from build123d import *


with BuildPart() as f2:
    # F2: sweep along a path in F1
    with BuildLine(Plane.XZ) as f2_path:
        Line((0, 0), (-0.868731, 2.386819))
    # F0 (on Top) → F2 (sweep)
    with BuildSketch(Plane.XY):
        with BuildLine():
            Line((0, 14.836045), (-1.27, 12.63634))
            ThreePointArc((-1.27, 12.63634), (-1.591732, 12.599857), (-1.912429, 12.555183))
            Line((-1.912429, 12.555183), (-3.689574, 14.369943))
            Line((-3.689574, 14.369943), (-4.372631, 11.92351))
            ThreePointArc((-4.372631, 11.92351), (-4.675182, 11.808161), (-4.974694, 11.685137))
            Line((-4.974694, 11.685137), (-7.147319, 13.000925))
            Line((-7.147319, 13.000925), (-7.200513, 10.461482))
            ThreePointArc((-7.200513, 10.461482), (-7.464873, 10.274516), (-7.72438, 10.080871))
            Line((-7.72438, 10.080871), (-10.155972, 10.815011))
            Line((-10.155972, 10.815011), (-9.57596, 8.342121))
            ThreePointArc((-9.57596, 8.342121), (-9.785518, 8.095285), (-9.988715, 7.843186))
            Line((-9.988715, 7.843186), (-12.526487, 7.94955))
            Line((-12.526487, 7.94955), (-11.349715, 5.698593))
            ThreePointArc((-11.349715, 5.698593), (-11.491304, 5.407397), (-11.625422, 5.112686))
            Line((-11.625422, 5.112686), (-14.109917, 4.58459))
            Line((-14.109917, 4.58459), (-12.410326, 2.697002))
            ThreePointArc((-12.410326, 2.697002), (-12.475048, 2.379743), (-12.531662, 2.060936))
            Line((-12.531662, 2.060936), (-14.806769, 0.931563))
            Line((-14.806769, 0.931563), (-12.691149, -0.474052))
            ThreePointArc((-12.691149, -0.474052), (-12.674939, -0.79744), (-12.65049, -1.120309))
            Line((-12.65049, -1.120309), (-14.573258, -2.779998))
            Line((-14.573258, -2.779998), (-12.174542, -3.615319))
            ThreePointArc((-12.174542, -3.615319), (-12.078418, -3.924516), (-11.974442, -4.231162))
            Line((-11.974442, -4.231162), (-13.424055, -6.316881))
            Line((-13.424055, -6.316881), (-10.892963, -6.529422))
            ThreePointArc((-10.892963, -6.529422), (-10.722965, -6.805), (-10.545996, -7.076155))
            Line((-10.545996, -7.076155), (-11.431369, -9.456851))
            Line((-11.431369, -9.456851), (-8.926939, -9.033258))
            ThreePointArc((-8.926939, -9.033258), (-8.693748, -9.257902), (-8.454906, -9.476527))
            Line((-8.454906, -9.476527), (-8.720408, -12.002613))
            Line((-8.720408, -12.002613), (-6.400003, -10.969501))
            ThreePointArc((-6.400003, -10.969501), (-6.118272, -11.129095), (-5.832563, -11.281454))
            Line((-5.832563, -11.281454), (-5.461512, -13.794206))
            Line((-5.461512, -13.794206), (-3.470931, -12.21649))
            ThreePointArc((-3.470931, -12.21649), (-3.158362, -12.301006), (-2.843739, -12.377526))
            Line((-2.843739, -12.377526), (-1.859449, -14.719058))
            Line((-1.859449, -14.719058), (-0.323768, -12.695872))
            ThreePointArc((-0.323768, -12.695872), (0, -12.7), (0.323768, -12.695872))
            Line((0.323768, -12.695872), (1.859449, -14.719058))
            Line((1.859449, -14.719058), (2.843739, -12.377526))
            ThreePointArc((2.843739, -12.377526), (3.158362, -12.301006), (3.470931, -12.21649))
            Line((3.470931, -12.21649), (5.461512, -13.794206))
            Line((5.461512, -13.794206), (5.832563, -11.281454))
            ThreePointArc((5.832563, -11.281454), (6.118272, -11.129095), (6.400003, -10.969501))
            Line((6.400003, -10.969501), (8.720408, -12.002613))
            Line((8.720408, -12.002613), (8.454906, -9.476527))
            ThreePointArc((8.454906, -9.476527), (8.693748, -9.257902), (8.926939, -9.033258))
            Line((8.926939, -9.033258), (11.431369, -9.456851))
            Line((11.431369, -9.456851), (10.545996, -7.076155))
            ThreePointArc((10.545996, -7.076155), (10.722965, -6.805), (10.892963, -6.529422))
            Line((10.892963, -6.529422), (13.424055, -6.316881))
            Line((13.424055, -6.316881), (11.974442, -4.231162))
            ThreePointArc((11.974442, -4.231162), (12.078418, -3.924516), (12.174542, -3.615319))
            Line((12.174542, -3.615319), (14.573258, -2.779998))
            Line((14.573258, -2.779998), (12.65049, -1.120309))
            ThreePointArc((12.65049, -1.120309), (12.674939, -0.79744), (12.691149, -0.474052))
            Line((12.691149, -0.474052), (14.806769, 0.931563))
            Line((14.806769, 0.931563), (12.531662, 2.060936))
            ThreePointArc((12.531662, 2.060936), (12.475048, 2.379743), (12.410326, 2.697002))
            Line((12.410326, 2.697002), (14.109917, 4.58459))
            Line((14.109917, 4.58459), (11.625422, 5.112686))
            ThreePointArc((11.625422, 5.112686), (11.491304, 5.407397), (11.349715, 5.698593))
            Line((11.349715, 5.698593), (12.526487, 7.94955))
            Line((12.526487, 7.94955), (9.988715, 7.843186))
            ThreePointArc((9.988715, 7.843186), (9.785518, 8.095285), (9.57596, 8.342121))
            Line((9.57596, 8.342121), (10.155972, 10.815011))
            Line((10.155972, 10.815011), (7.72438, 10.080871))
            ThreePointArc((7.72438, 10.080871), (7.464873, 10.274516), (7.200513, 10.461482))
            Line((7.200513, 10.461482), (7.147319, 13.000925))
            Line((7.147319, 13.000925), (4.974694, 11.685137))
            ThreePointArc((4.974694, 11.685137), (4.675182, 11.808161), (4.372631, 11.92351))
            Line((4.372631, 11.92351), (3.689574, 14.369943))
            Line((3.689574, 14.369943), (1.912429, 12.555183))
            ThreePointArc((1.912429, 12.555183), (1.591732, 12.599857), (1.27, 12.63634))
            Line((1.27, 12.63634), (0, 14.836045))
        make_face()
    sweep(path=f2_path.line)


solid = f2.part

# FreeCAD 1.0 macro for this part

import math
import FreeCAD as App
import Part
import Sketcher
from FreeCAD import Vector
Q = App.Units.Quantity

doc = App.newDocument("Part")
body = doc.addObject("PartDesign::Body", "Body")

# Sketch on XY plane
sketch1 = body.newObject("Sketcher::SketchObject", "Sketch")
sketch1.AttachmentSupport = (doc.getObject("XY_Plane"), [""])
sketch1.MapMode = "FlatFace"
sketch1.addGeometry(Part.LineSegment(Vector(0, 14.836045, 0), Vector(-1.27, 12.63634, 0)), False)
sketch1.addGeometry(Part.ArcOfCircle(Part.Circle(Vector(-0.000171, 0.001255, 0), Vector(0, 0, 1), 12.698733), math.radians(95.738968), math.radians(98.660916)), False)
sketch1.addGeometry(Part.LineSegment(Vector(-1.912429, 12.555183, 0), Vector(-3.689574, 14.369943, 0)), False)
sketch1.addGeometry(Part.LineSegment(Vector(-3.689574, 14.369943, 0), Vector(-4.372631, 11.92351, 0)), False)
sketch1.addGeometry(Part.ArcOfCircle(Part.Circle(Vector(0.000298, -0.000782, 0), Vector(0, 0, 1), 12.700836), math.radians(110.139218), math.radians(113.060682)), False)
sketch1.addGeometry(Part.LineSegment(Vector(-4.974694, 11.685137, 0), Vector(-7.147319, 13.000925, 0)), False)
sketch1.addGeometry(Part.LineSegment(Vector(-7.147319, 13.000925, 0), Vector(-7.200513, 10.461482, 0)), False)
sketch1.addGeometry(Part.ArcOfCircle(Part.Circle(Vector(-0.000588, 0.000791, 0), Vector(0, 0, 1), 12.699014), math.radians(124.539012), math.radians(127.460895)), False)
sketch1.addGeometry(Part.LineSegment(Vector(-7.72438, 10.080871, 0), Vector(-10.155972, 10.815011, 0)), False)
sketch1.addGeometry(Part.LineSegment(Vector(-10.155972, 10.815011, 0), Vector(-9.57596, 8.342121, 0)), False)
sketch1.addGeometry(Part.ArcOfCircle(Part.Circle(Vector(-0.000786, 0.000649, 0), Vector(0, 0, 1), 12.69898), math.radians(138.939047), math.radians(141.860943)), False)
sketch1.addGeometry(Part.LineSegment(Vector(-9.988715, 7.843186, 0), Vector(-12.526487, 7.94955, 0)), False)
sketch1.addGeometry(Part.LineSegment(Vector(-12.526487, 7.94955, 0), Vector(-11.349715, 5.698593, 0)), False)
sketch1.addGeometry(Part.ArcOfCircle(Part.Circle(Vector(-0.00177, 0.000831, 0), Vector(0, 0, 1), 12.698044), math.radians(153.338939), math.radians(156.261046)), False)
sketch1.addGeometry(Part.LineSegment(Vector(-11.625422, 5.112686, 0), Vector(-14.109917, 4.58459, 0)), False)
sketch1.addGeometry(Part.LineSegment(Vector(-14.109917, 4.58459, 0), Vector(-12.410326, 2.697002, 0)), False)
sketch1.addGeometry(Part.ArcOfCircle(Part.Circle(Vector(0.001321, -0.000251, 0), Vector(0, 0, 1), 12.701344), math.radians(167.739332), math.radians(170.660682)), False)
sketch1.addGeometry(Part.LineSegment(Vector(-12.531662, 2.060936, 0), Vector(-14.806769, 0.931563, 0)), False)
sketch1.addGeometry(Part.LineSegment(Vector(-14.806769, 0.931563, 0), Vector(-12.691149, -0.474052, 0)), False)
sketch1.addGeometry(Part.ArcOfCircle(Part.Circle(Vector(-0.000041, -0.000004, 0), Vector(0, 0, 1), 12.699958), math.radians(-177.860837), math.radians(-174.939171)), False)
sketch1.addGeometry(Part.LineSegment(Vector(-12.65049, -1.120309, 0), Vector(-14.573258, -2.779998, 0)), False)
sketch1.addGeometry(Part.LineSegment(Vector(-14.573258, -2.779998, 0), Vector(-12.174542, -3.615319, 0)), False)
sketch1.addGeometry(Part.ArcOfCircle(Part.Circle(Vector(-0.00098, -0.000309, 0), Vector(0, 0, 1), 12.698972), math.radians(-163.460908), math.radians(-160.539011)), False)
sketch1.addGeometry(Part.LineSegment(Vector(-11.974442, -4.231162, 0), Vector(-13.424055, -6.316881, 0)), False)
sketch1.addGeometry(Part.LineSegment(Vector(-13.424055, -6.316881, 0), Vector(-10.892963, -6.529422, 0)), False)
sketch1.addGeometry(Part.ArcOfCircle(Part.Circle(Vector(-0.000559, -0.000361, 0), Vector(0, 0, 1), 12.699334), math.radians(-149.060931), math.radians(-146.139116)), False)
sketch1.addGeometry(Part.LineSegment(Vector(-10.545996, -7.076155, 0), Vector(-11.431369, -9.456851, 0)), False)
sketch1.addGeometry(Part.LineSegment(Vector(-11.431369, -9.456851, 0), Vector(-8.926939, -9.033258, 0)), False)
sketch1.addGeometry(Part.ArcOfCircle(Part.Circle(Vector(-0.000741, -0.0008, 0), Vector(0, 0, 1), 12.69891), math.radians(-134.660988), math.radians(-131.739077)), False)
sketch1.addGeometry(Part.LineSegment(Vector(-8.454906, -9.476527, 0), Vector(-8.720408, -12.002613, 0)), False)
sketch1.addGeometry(Part.LineSegment(Vector(-8.720408, -12.002613, 0), Vector(-6.400003, -10.969501, 0)), False)
sketch1.addGeometry(Part.ArcOfCircle(Part.Circle(Vector(-0.000857, -0.001566, 0), Vector(0, 0, 1), 12.698215), math.radians(-120.261053), math.radians(-117.338981)), False)
sketch1.addGeometry(Part.LineSegment(Vector(-5.832563, -11.281454, 0), Vector(-5.461512, -13.794206, 0)), False)
sketch1.addGeometry(Part.LineSegment(Vector(-5.461512, -13.794206, 0), Vector(-3.470931, -12.21649, 0)), False)
sketch1.addGeometry(Part.ArcOfCircle(Part.Circle(Vector(-0.000096, -0.000411, 0), Vector(0, 0, 1), 12.699578), math.radians(-105.860918), math.radians(-102.939161)), False)
sketch1.addGeometry(Part.LineSegment(Vector(-2.843739, -12.377526, 0), Vector(-1.859449, -14.719058, 0)), False)
sketch1.addGeometry(Part.LineSegment(Vector(-1.859449, -14.719058, 0), Vector(-0.323768, -12.695872, 0)), False)
sketch1.addGeometry(Part.ArcOfCircle(Part.Circle(Vector(0, -0.001023, 0), Vector(0, 0, 1), 12.698977), math.radians(-91.460948), math.radians(-88.539052)), False)
sketch1.addGeometry(Part.LineSegment(Vector(0.323768, -12.695872, 0), Vector(1.859449, -14.719058, 0)), False)
sketch1.addGeometry(Part.LineSegment(Vector(1.859449, -14.719058, 0), Vector(2.843739, -12.377526, 0)), False)
sketch1.addGeometry(Part.ArcOfCircle(Part.Circle(Vector(0.000096, -0.000411, 0), Vector(0, 0, 1), 12.699578), math.radians(-77.060839), math.radians(-74.139082)), False)
sketch1.addGeometry(Part.LineSegment(Vector(3.470931, -12.21649, 0), Vector(5.461512, -13.794206, 0)), False)
sketch1.addGeometry(Part.LineSegment(Vector(5.461512, -13.794206, 0), Vector(5.832563, -11.281454, 0)), False)
sketch1.addGeometry(Part.ArcOfCircle(Part.Circle(Vector(0.000857, -0.001566, 0), Vector(0, 0, 1), 12.698215), math.radians(-62.661019), math.radians(-59.738947)), False)
sketch1.addGeometry(Part.LineSegment(Vector(6.400003, -10.969501, 0), Vector(8.720408, -12.002613, 0)), False)
sketch1.addGeometry(Part.LineSegment(Vector(8.720408, -12.002613, 0), Vector(8.454906, -9.476527, 0)), False)
sketch1.addGeometry(Part.ArcOfCircle(Part.Circle(Vector(0.000741, -0.0008, 0), Vector(0, 0, 1), 12.69891), math.radians(-48.260923), math.radians(-45.339012)), False)
sketch1.addGeometry(Part.LineSegment(Vector(8.926939, -9.033258, 0), Vector(11.431369, -9.456851, 0)), False)
sketch1.addGeometry(Part.LineSegment(Vector(11.431369, -9.456851, 0), Vector(10.545996, -7.076155, 0)), False)
sketch1.addGeometry(Part.ArcOfCircle(Part.Circle(Vector(0.000559, -0.000361, 0), Vector(0, 0, 1), 12.699334), math.radians(-33.860884), math.radians(-30.939069)), False)
sketch1.addGeometry(Part.LineSegment(Vector(10.892963, -6.529422, 0), Vector(13.424055, -6.316881, 0)), False)
sketch1.addGeometry(Part.LineSegment(Vector(13.424055, -6.316881, 0), Vector(11.974442, -4.231162, 0)), False)
sketch1.addGeometry(Part.ArcOfCircle(Part.Circle(Vector(0.00098, -0.000309, 0), Vector(0, 0, 1), 12.698972), math.radians(-19.460989), math.radians(-16.539092)), False)
sketch1.addGeometry(Part.LineSegment(Vector(12.174542, -3.615319, 0), Vector(14.573258, -2.779998, 0)), False)
sketch1.addGeometry(Part.LineSegment(Vector(14.573258, -2.779998, 0), Vector(12.65049, -1.120309, 0)), False)
sketch1.addGeometry(Part.ArcOfCircle(Part.Circle(Vector(0.000041, -0.000004, 0), Vector(0, 0, 1), 12.699958), math.radians(-5.060829), math.radians(-2.139163)), False)
sketch1.addGeometry(Part.LineSegment(Vector(12.691149, -0.474052, 0), Vector(14.806769, 0.931563, 0)), False)
sketch1.addGeometry(Part.LineSegment(Vector(14.806769, 0.931563, 0), Vector(12.531662, 2.060936, 0)), False)
sketch1.addGeometry(Part.ArcOfCircle(Part.Circle(Vector(-0.001321, -0.000251, 0), Vector(0, 0, 1), 12.701344), math.radians(9.339318), math.radians(12.260668)), False)
sketch1.addGeometry(Part.LineSegment(Vector(12.410326, 2.697002, 0), Vector(14.109917, 4.58459, 0)), False)
sketch1.addGeometry(Part.LineSegment(Vector(14.109917, 4.58459, 0), Vector(11.625422, 5.112686, 0)), False)
sketch1.addGeometry(Part.ArcOfCircle(Part.Circle(Vector(0.00177, 0.000831, 0), Vector(0, 0, 1), 12.698044), math.radians(23.738954), math.radians(26.661061)), False)
sketch1.addGeometry(Part.LineSegment(Vector(11.349715, 5.698593, 0), Vector(12.526487, 7.94955, 0)), False)
sketch1.addGeometry(Part.LineSegment(Vector(12.526487, 7.94955, 0), Vector(9.988715, 7.843186, 0)), False)
sketch1.addGeometry(Part.ArcOfCircle(Part.Circle(Vector(0.000786, 0.000649, 0), Vector(0, 0, 1), 12.69898), math.radians(38.139057), math.radians(41.060953)), False)
sketch1.addGeometry(Part.LineSegment(Vector(9.57596, 8.342121, 0), Vector(10.155972, 10.815011, 0)), False)
sketch1.addGeometry(Part.LineSegment(Vector(10.155972, 10.815011, 0), Vector(7.72438, 10.080871, 0)), False)
sketch1.addGeometry(Part.ArcOfCircle(Part.Circle(Vector(0.000588, 0.000791, 0), Vector(0, 0, 1), 12.699014), math.radians(52.539105), math.radians(55.460988)), False)
sketch1.addGeometry(Part.LineSegment(Vector(7.200513, 10.461482, 0), Vector(7.147319, 13.000925, 0)), False)
sketch1.addGeometry(Part.LineSegment(Vector(7.147319, 13.000925, 0), Vector(4.974694, 11.685137, 0)), False)
sketch1.addGeometry(Part.ArcOfCircle(Part.Circle(Vector(-0.000298, -0.000782, 0), Vector(0, 0, 1), 12.700836), math.radians(66.939318), math.radians(69.860782)), False)
sketch1.addGeometry(Part.LineSegment(Vector(4.372631, 11.92351, 0), Vector(3.689574, 14.369943, 0)), False)
sketch1.addGeometry(Part.LineSegment(Vector(3.689574, 14.369943, 0), Vector(1.912429, 12.555183, 0)), False)
sketch1.addGeometry(Part.ArcOfCircle(Part.Circle(Vector(0.000171, 0.001255, 0), Vector(0, 0, 1), 12.698733), math.radians(81.339084), math.radians(84.261032)), False)
sketch1.addGeometry(Part.LineSegment(Vector(1.27, 12.63634, 0), Vector(0, 14.836045, 0)), False)
sketch1.addConstraint(Sketcher.Constraint("Coincident", 0, 2, 1, 1))
sketch1.addConstraint(Sketcher.Constraint("Coincident", 1, 2, 2, 1))
sketch1.addConstraint(Sketcher.Constraint("Coincident", 2, 2, 3, 1))
sketch1.addConstraint(Sketcher.Constraint("Coincident", 3, 2, 4, 1))
sketch1.addConstraint(Sketcher.Constraint("Coincident", 4, 2, 5, 1))
sketch1.addConstraint(Sketcher.Constraint("Coincident", 5, 2, 6, 1))
sketch1.addConstraint(Sketcher.Constraint("Coincident", 6, 2, 7, 1))
sketch1.addConstraint(Sketcher.Constraint("Coincident", 7, 2, 8, 1))
sketch1.addConstraint(Sketcher.Constraint("Coincident", 8, 2, 9, 1))
sketch1.addConstraint(Sketcher.Constraint("Coincident", 9, 2, 10, 1))
sketch1.addConstraint(Sketcher.Constraint("Coincident", 10, 2, 11, 1))
sketch1.addConstraint(Sketcher.Constraint("Coincident", 11, 2, 12, 1))
sketch1.addConstraint(Sketcher.Constraint("Coincident", 12, 2, 13, 1))
sketch1.addConstraint(Sketcher.Constraint("Coincident", 13, 2, 14, 1))
sketch1.addConstraint(Sketcher.Constraint("Coincident", 14, 2, 15, 1))
sketch1.addConstraint(Sketcher.Constraint("Coincident", 15, 2, 16, 1))
sketch1.addConstraint(Sketcher.Constraint("Coincident", 16, 2, 17, 1))
sketch1.addConstraint(Sketcher.Constraint("Coincident", 17, 2, 18, 1))
sketch1.addConstraint(Sketcher.Constraint("Coincident", 18, 2, 19, 1))
sketch1.addConstraint(Sketcher.Constraint("Coincident", 19, 2, 20, 1))
sketch1.addConstraint(Sketcher.Constraint("Coincident", 20, 2, 21, 1))
sketch1.addConstraint(Sketcher.Constraint("Coincident", 21, 2, 22, 1))
sketch1.addConstraint(Sketcher.Constraint("Coincident", 22, 2, 23, 1))
sketch1.addConstraint(Sketcher.Constraint("Coincident", 23, 2, 24, 1))
sketch1.addConstraint(Sketcher.Constraint("Coincident", 24, 2, 25, 1))
sketch1.addConstraint(Sketcher.Constraint("Coincident", 25, 2, 26, 1))
sketch1.addConstraint(Sketcher.Constraint("Coincident", 26, 2, 27, 1))
sketch1.addConstraint(Sketcher.Constraint("Coincident", 27, 2, 28, 1))
sketch1.addConstraint(Sketcher.Constraint("Coincident", 28, 2, 29, 1))
sketch1.addConstraint(Sketcher.Constraint("Coincident", 29, 2, 30, 1))
sketch1.addConstraint(Sketcher.Constraint("Coincident", 30, 2, 31, 1))
sketch1.addConstraint(Sketcher.Constraint("Coincident", 31, 2, 32, 1))
sketch1.addConstraint(Sketcher.Constraint("Coincident", 32, 2, 33, 1))
sketch1.addConstraint(Sketcher.Constraint("Coincident", 33, 2, 34, 1))
sketch1.addConstraint(Sketcher.Constraint("Coincident", 34, 2, 35, 1))
sketch1.addConstraint(Sketcher.Constraint("Coincident", 35, 2, 36, 1))
sketch1.addConstraint(Sketcher.Constraint("Coincident", 36, 2, 37, 1))
sketch1.addConstraint(Sketcher.Constraint("Coincident", 37, 2, 38, 1))
sketch1.addConstraint(Sketcher.Constraint("Coincident", 38, 2, 39, 1))
sketch1.addConstraint(Sketcher.Constraint("Coincident", 39, 2, 40, 1))
sketch1.addConstraint(Sketcher.Constraint("Coincident", 40, 2, 41, 1))
sketch1.addConstraint(Sketcher.Constraint("Coincident", 41, 2, 42, 1))
sketch1.addConstraint(Sketcher.Constraint("Coincident", 42, 2, 43, 1))
sketch1.addConstraint(Sketcher.Constraint("Coincident", 43, 2, 44, 1))
sketch1.addConstraint(Sketcher.Constraint("Coincident", 44, 2, 45, 1))
sketch1.addConstraint(Sketcher.Constraint("Coincident", 45, 2, 46, 1))
sketch1.addConstraint(Sketcher.Constraint("Coincident", 46, 2, 47, 1))
sketch1.addConstraint(Sketcher.Constraint("Coincident", 47, 2, 48, 1))
sketch1.addConstraint(Sketcher.Constraint("Coincident", 48, 2, 49, 1))
sketch1.addConstraint(Sketcher.Constraint("Coincident", 49, 2, 50, 1))
sketch1.addConstraint(Sketcher.Constraint("Coincident", 50, 2, 51, 1))
sketch1.addConstraint(Sketcher.Constraint("Coincident", 51, 2, 52, 1))
sketch1.addConstraint(Sketcher.Constraint("Coincident", 52, 2, 53, 1))
sketch1.addConstraint(Sketcher.Constraint("Coincident", 53, 2, 54, 1))
sketch1.addConstraint(Sketcher.Constraint("Coincident", 54, 2, 55, 1))
sketch1.addConstraint(Sketcher.Constraint("Coincident", 55, 2, 56, 1))
sketch1.addConstraint(Sketcher.Constraint("Coincident", 56, 2, 57, 1))
sketch1.addConstraint(Sketcher.Constraint("Coincident", 57, 2, 58, 1))
sketch1.addConstraint(Sketcher.Constraint("Coincident", 58, 2, 59, 1))
sketch1.addConstraint(Sketcher.Constraint("Coincident", 59, 2, 60, 1))
sketch1.addConstraint(Sketcher.Constraint("Coincident", 60, 2, 61, 1))
sketch1.addConstraint(Sketcher.Constraint("Coincident", 61, 2, 62, 1))
sketch1.addConstraint(Sketcher.Constraint("Coincident", 62, 2, 63, 1))
sketch1.addConstraint(Sketcher.Constraint("Coincident", 63, 2, 64, 1))
sketch1.addConstraint(Sketcher.Constraint("Coincident", 64, 2, 65, 1))
sketch1.addConstraint(Sketcher.Constraint("Coincident", 65, 2, 66, 1))
sketch1.addConstraint(Sketcher.Constraint("Coincident", 66, 2, 67, 1))
sketch1.addConstraint(Sketcher.Constraint("Coincident", 67, 2, 68, 1))
sketch1.addConstraint(Sketcher.Constraint("Coincident", 68, 2, 69, 1))
sketch1.addConstraint(Sketcher.Constraint("Coincident", 69, 2, 70, 1))
sketch1.addConstraint(Sketcher.Constraint("Coincident", 70, 2, 71, 1))
sketch1.addConstraint(Sketcher.Constraint("Coincident", 71, 2, 72, 1))
sketch1.addConstraint(Sketcher.Constraint("Coincident", 72, 2, 73, 1))
sketch1.addConstraint(Sketcher.Constraint("Coincident", 73, 2, 74, 1))
sketch1.addConstraint(Sketcher.Constraint("Coincident", 74, 2, 0, 1))
sketch1.addConstraint(Sketcher.Constraint("PointOnObject", 37, 3, -2))
sketch1.addConstraint(Sketcher.Constraint("PointOnObject", 74, 2, -2))
sketch1.addConstraint(Sketcher.Constraint("Distance", 0, Q("0.1 in")))
sketch1.addConstraint(Sketcher.Constraint("Distance", 2, Q("0.1 in")))
sketch1.addConstraint(Sketcher.Constraint("Distance", 3, Q("0.1 in")))
sketch1.addConstraint(Sketcher.Constraint("Distance", 5, Q("0.1 in")))
sketch1.addConstraint(Sketcher.Constraint("Distance", 6, Q("0.1 in")))
sketch1.addConstraint(Sketcher.Constraint("Distance", 8, Q("0.1 in")))
sketch1.addConstraint(Sketcher.Constraint("Distance", 9, Q("0.1 in")))
sketch1.addConstraint(Sketcher.Constraint("Distance", 11, Q("0.1 in")))
sketch1.addConstraint(Sketcher.Constraint("Distance", 12, Q("0.1 in")))
sketch1.addConstraint(Sketcher.Constraint("Distance", 14, Q("0.1 in")))
sketch1.addConstraint(Sketcher.Constraint("Distance", 15, Q("0.1 in")))
sketch1.addConstraint(Sketcher.Constraint("Distance", 17, Q("0.1 in")))
sketch1.addConstraint(Sketcher.Constraint("Distance", 18, Q("0.1 in")))
sketch1.addConstraint(Sketcher.Constraint("Distance", 20, Q("0.1 in")))
sketch1.addConstraint(Sketcher.Constraint("Distance", 21, Q("0.1 in")))
sketch1.addConstraint(Sketcher.Constraint("Distance", 23, Q("0.1 in")))
sketch1.addConstraint(Sketcher.Constraint("Distance", 24, Q("0.1 in")))
sketch1.addConstraint(Sketcher.Constraint("Distance", 26, Q("0.1 in")))
sketch1.addConstraint(Sketcher.Constraint("Distance", 27, Q("0.1 in")))
sketch1.addConstraint(Sketcher.Constraint("Distance", 29, Q("0.1 in")))
sketch1.addConstraint(Sketcher.Constraint("Distance", 30, Q("0.1 in")))
sketch1.addConstraint(Sketcher.Constraint("Distance", 32, Q("0.1 in")))
sketch1.addConstraint(Sketcher.Constraint("Distance", 33, Q("0.1 in")))
sketch1.addConstraint(Sketcher.Constraint("Distance", 35, Q("0.1 in")))
sketch1.addConstraint(Sketcher.Constraint("Distance", 36, Q("0.1 in")))
sketch1.addConstraint(Sketcher.Constraint("Distance", 38, Q("0.1 in")))
sketch1.addConstraint(Sketcher.Constraint("Distance", 39, Q("0.1 in")))
sketch1.addConstraint(Sketcher.Constraint("Distance", 41, Q("0.1 in")))
sketch1.addConstraint(Sketcher.Constraint("Distance", 42, Q("0.1 in")))
sketch1.addConstraint(Sketcher.Constraint("Distance", 44, Q("0.1 in")))
sketch1.addConstraint(Sketcher.Constraint("Distance", 45, Q("0.1 in")))
sketch1.addConstraint(Sketcher.Constraint("Distance", 47, Q("0.1 in")))
sketch1.addConstraint(Sketcher.Constraint("Distance", 48, Q("0.1 in")))
sketch1.addConstraint(Sketcher.Constraint("Distance", 50, Q("0.1 in")))
sketch1.addConstraint(Sketcher.Constraint("Distance", 51, Q("0.1 in")))
sketch1.addConstraint(Sketcher.Constraint("Distance", 53, Q("0.1 in")))
sketch1.addConstraint(Sketcher.Constraint("Distance", 54, Q("0.1 in")))
sketch1.addConstraint(Sketcher.Constraint("Distance", 56, Q("0.1 in")))
sketch1.addConstraint(Sketcher.Constraint("Distance", 57, Q("0.1 in")))
sketch1.addConstraint(Sketcher.Constraint("Distance", 59, Q("0.1 in")))
sketch1.addConstraint(Sketcher.Constraint("Distance", 60, Q("0.1 in")))
sketch1.addConstraint(Sketcher.Constraint("Distance", 62, Q("0.1 in")))
sketch1.addConstraint(Sketcher.Constraint("Distance", 63, Q("0.1 in")))
sketch1.addConstraint(Sketcher.Constraint("Distance", 65, Q("0.1 in")))
sketch1.addConstraint(Sketcher.Constraint("Distance", 66, Q("0.1 in")))
sketch1.addConstraint(Sketcher.Constraint("Distance", 68, Q("0.1 in")))
sketch1.addConstraint(Sketcher.Constraint("Distance", 69, Q("0.1 in")))
sketch1.addConstraint(Sketcher.Constraint("Distance", 71, Q("0.1 in")))
sketch1.addConstraint(Sketcher.Constraint("Distance", 72, Q("0.1 in")))
sketch1.addConstraint(Sketcher.Constraint("Distance", 74, Q("0.1 in")))
sketch1.addConstraint(Sketcher.Constraint("DistanceX", 0, 2, -1, 1, Q("0.05 in")))
sketch1.addConstraint(Sketcher.Constraint("DistanceX", -1, 1, 73, 2, Q("0.05 in")))
sketch1.addConstraint(Sketcher.Constraint("Radius", 10, Q("12.69898 mm")))
sketch1.addConstraint(Sketcher.Constraint("Radius", 19, Q("12.699958 mm")))
sketch1.addConstraint(Sketcher.Constraint("Radius", 28, Q("12.69891 mm")))
sketch1.addConstraint(Sketcher.Constraint("Radius", 34, Q("12.699578 mm")))
sketch1.addConstraint(Sketcher.Constraint("Radius", 40, Q("12.699578 mm")))
sketch1.addConstraint(Sketcher.Constraint("Radius", 46, Q("12.69891 mm")))
sketch1.addConstraint(Sketcher.Constraint("Radius", 55, Q("12.699958 mm")))
sketch1.addConstraint(Sketcher.Constraint("Radius", 64, Q("12.69898 mm")))
sketch1.addConstraint(Sketcher.Constraint("Radius", 1, Q("12.698733 mm")))
sketch1.addConstraint(Sketcher.Constraint("Radius", 4, Q("12.700836 mm")))
sketch1.addConstraint(Sketcher.Constraint("Radius", 7, Q("12.699014 mm")))
sketch1.addConstraint(Sketcher.Constraint("Radius", 13, Q("12.698044 mm")))
sketch1.addConstraint(Sketcher.Constraint("Radius", 16, Q("12.701344 mm")))
sketch1.addConstraint(Sketcher.Constraint("Radius", 22, Q("12.698972 mm")))
sketch1.addConstraint(Sketcher.Constraint("Radius", 25, Q("12.699334 mm")))
sketch1.addConstraint(Sketcher.Constraint("Radius", 31, Q("12.698215 mm")))
sketch1.addConstraint(Sketcher.Constraint("Radius", 37, Q("12.698977 mm")))
sketch1.addConstraint(Sketcher.Constraint("Radius", 43, Q("12.698215 mm")))
sketch1.addConstraint(Sketcher.Constraint("Radius", 49, Q("12.699334 mm")))
sketch1.addConstraint(Sketcher.Constraint("Radius", 52, Q("12.698972 mm")))
sketch1.addConstraint(Sketcher.Constraint("Radius", 58, Q("12.701344 mm")))
sketch1.addConstraint(Sketcher.Constraint("Radius", 61, Q("12.698044 mm")))
sketch1.addConstraint(Sketcher.Constraint("Radius", 67, Q("12.699014 mm")))
sketch1.addConstraint(Sketcher.Constraint("Radius", 70, Q("12.700836 mm")))
sketch1.addConstraint(Sketcher.Constraint("Radius", 73, Q("12.698733 mm")))
sketch1.addConstraint(Sketcher.Constraint("DistanceY", 28, 3, -1, 1, Q("0.0008 mm")))
sketch1.addConstraint(Sketcher.Constraint("DistanceY", 46, 3, -1, 1, Q("0.0008 mm")))
sketch1.addConstraint(Sketcher.Constraint("DistanceY", -1, 1, 15, 2, Q("2.697002 mm")))
sketch1.addConstraint(Sketcher.Constraint("DistanceY", 20, 2, -1, 1, Q("2.779998 mm")))
sketch1.addConstraint(Sketcher.Constraint("DistanceY", 30, 2, -1, 1, Q("10.969501 mm")))
sketch1.addConstraint(Sketcher.Constraint("DistanceY", 43, 2, -1, 1, Q("10.969501 mm")))
sketch1.addConstraint(Sketcher.Constraint("DistanceY", 53, 2, -1, 1, Q("2.779998 mm")))
sketch1.addConstraint(Sketcher.Constraint("DistanceX", 1, 3, -1, 1, Q("0.000171 mm")))
sketch1.addConstraint(Sketcher.Constraint("DistanceY", -1, 1, 7, 3, Q("0.000791 mm")))
sketch1.addConstraint(Sketcher.Constraint("DistanceY", -1, 1, 10, 3, Q("0.000649 mm")))
sketch1.addConstraint(Sketcher.Constraint("DistanceX", 13, 3, -1, 1, Q("0.00177 mm")))
sketch1.addConstraint(Sketcher.Constraint("DistanceY", -1, 1, 13, 3, Q("0.000831 mm")))
sketch1.addConstraint(Sketcher.Constraint("DistanceX", -1, 1, 16, 3, Q("0.001321 mm")))
sketch1.addConstraint(Sketcher.Constraint("DistanceY", 16, 3, -1, 1, Q("0.000251 mm")))
sketch1.addConstraint(Sketcher.Constraint("DistanceX", 22, 3, -1, 1, Q("0.00098 mm")))
sketch1.addConstraint(Sketcher.Constraint("DistanceY", 22, 3, -1, 1, Q("0.000309 mm")))
sketch1.addConstraint(Sketcher.Constraint("DistanceX", 25, 3, -1, 1, Q("0.000559 mm")))
sketch1.addConstraint(Sketcher.Constraint("DistanceY", 25, 3, -1, 1, Q("0.000361 mm")))
sketch1.addConstraint(Sketcher.Constraint("DistanceX", 28, 3, -1, 1, Q("0.000741 mm")))
sketch1.addConstraint(Sketcher.Constraint("DistanceY", 34, 3, -1, 1, Q("0.000411 mm")))
sketch1.addConstraint(Sketcher.Constraint("DistanceY", 40, 3, -1, 1, Q("0.000411 mm")))
sketch1.addConstraint(Sketcher.Constraint("DistanceX", -1, 1, 46, 3, Q("0.000741 mm")))
sketch1.addConstraint(Sketcher.Constraint("DistanceX", -1, 1, 49, 3, Q("0.000559 mm")))
sketch1.addConstraint(Sketcher.Constraint("DistanceY", 49, 3, -1, 1, Q("0.000361 mm")))
sketch1.addConstraint(Sketcher.Constraint("DistanceX", -1, 1, 52, 3, Q("0.00098 mm")))
sketch1.addConstraint(Sketcher.Constraint("DistanceY", 52, 3, -1, 1, Q("0.000309 mm")))
sketch1.addConstraint(Sketcher.Constraint("DistanceX", 58, 3, -1, 1, Q("0.001321 mm")))
sketch1.addConstraint(Sketcher.Constraint("DistanceY", 58, 3, -1, 1, Q("0.000251 mm")))
sketch1.addConstraint(Sketcher.Constraint("DistanceX", -1, 1, 61, 3, Q("0.00177 mm")))
sketch1.addConstraint(Sketcher.Constraint("DistanceY", -1, 1, 61, 3, Q("0.000831 mm")))
sketch1.addConstraint(Sketcher.Constraint("DistanceY", -1, 1, 64, 3, Q("0.000649 mm")))
sketch1.addConstraint(Sketcher.Constraint("DistanceY", -1, 1, 67, 3, Q("0.000791 mm")))
sketch1.addConstraint(Sketcher.Constraint("DistanceX", -1, 1, 73, 3, Q("0.000171 mm")))
sketch1.addConstraint(Sketcher.Constraint("DistanceY", -1, 1, 0, 2, Q("12.63634 mm")))
sketch1.addConstraint(Sketcher.Constraint("DistanceX", 1, 2, -1, 1, Q("1.912429 mm")))
sketch1.addConstraint(Sketcher.Constraint("DistanceX", 3, 2, -1, 1, Q("4.372631 mm")))
sketch1.addConstraint(Sketcher.Constraint("DistanceY", -1, 1, 3, 2, Q("11.92351 mm")))
sketch1.addConstraint(Sketcher.Constraint("DistanceX", 5, 2, -1, 1, Q("7.147319 mm")))
sketch1.addConstraint(Sketcher.Constraint("DistanceX", 7, 2, -1, 1, Q("7.72438 mm")))
sketch1.addConstraint(Sketcher.Constraint("DistanceY", -1, 1, 7, 2, Q("10.080871 mm")))
sketch1.addConstraint(Sketcher.Constraint("DistanceY", -1, 1, 8, 2, Q("10.815011 mm")))
sketch1.addConstraint(Sketcher.Constraint("DistanceX", 9, 2, -1, 1, Q("9.57596 mm")))
sketch1.addConstraint(Sketcher.Constraint("DistanceY", -1, 1, 11, 2, Q("7.94955 mm")))
sketch1.addConstraint(Sketcher.Constraint("DistanceX", 13, 2, -1, 1, Q("11.625422 mm")))
sketch1.addConstraint(Sketcher.Constraint("DistanceX", 17, 2, -1, 1, Q("14.806769 mm")))
sketch1.addConstraint(Sketcher.Constraint("DistanceX", 18, 2, -1, 1, Q("12.691149 mm")))
sketch1.addConstraint(Sketcher.Constraint("DistanceY", 18, 2, -1, 1, Q("0.474052 mm")))
sketch1.addConstraint(Sketcher.Constraint("DistanceX", 19, 2, -1, 1, Q("12.65049 mm")))
sketch1.addConstraint(Sketcher.Constraint("DistanceY", 19, 2, -1, 1, Q("1.120309 mm")))
sketch1.addConstraint(Sketcher.Constraint("DistanceY", 23, 2, -1, 1, Q("6.316881 mm")))
sketch1.addConstraint(Sketcher.Constraint("DistanceX", 26, 2, -1, 1, Q("11.431369 mm")))
sketch1.addConstraint(Sketcher.Constraint("DistanceY", 26, 2, -1, 1, Q("9.456851 mm")))
sketch1.addConstraint(Sketcher.Constraint("DistanceX", 29, 2, -1, 1, Q("8.720408 mm")))
sketch1.addConstraint(Sketcher.Constraint("DistanceX", 33, 2, -1, 1, Q("3.470931 mm")))
sketch1.addConstraint(Sketcher.Constraint("DistanceY", 33, 2, -1, 1, Q("12.21649 mm")))
sketch1.addConstraint(Sketcher.Constraint("DistanceX", 34, 2, -1, 1, Q("2.843739 mm")))
sketch1.addConstraint(Sketcher.Constraint("DistanceX", 35, 2, -1, 1, Q("1.859449 mm")))
sketch1.addConstraint(Sketcher.Constraint("DistanceY", 37, 2, -1, 1, Q("12.695872 mm")))
sketch1.addConstraint(Sketcher.Constraint("DistanceX", -1, 1, 38, 2, Q("1.859449 mm")))
sketch1.addConstraint(Sketcher.Constraint("DistanceX", -1, 1, 39, 2, Q("2.843739 mm")))
sketch1.addConstraint(Sketcher.Constraint("DistanceX", -1, 1, 40, 2, Q("3.470931 mm")))
sketch1.addConstraint(Sketcher.Constraint("DistanceY", 40, 2, -1, 1, Q("12.21649 mm")))
sketch1.addConstraint(Sketcher.Constraint("DistanceX", -1, 1, 44, 2, Q("8.720408 mm")))
sketch1.addConstraint(Sketcher.Constraint("DistanceX", -1, 1, 46, 2, Q("8.926939 mm")))
sketch1.addConstraint(Sketcher.Constraint("DistanceX", -1, 1, 47, 2, Q("11.431369 mm")))
sketch1.addConstraint(Sketcher.Constraint("DistanceY", 50, 2, -1, 1, Q("6.316881 mm")))
sketch1.addConstraint(Sketcher.Constraint("DistanceY", 52, 2, -1, 1, Q("3.615319 mm")))
sketch1.addConstraint(Sketcher.Constraint("DistanceX", -1, 1, 54, 2, Q("12.65049 mm")))
sketch1.addConstraint(Sketcher.Constraint("DistanceX", -1, 1, 55, 2, Q("12.691149 mm")))
sketch1.addConstraint(Sketcher.Constraint("DistanceX", -1, 1, 56, 2, Q("14.806769 mm")))
sketch1.addConstraint(Sketcher.Constraint("DistanceY", -1, 1, 59, 2, Q("4.58459 mm")))
sketch1.addConstraint(Sketcher.Constraint("DistanceY", -1, 1, 62, 2, Q("7.94955 mm")))
sketch1.addConstraint(Sketcher.Constraint("DistanceX", -1, 1, 64, 2, Q("9.57596 mm")))
sketch1.addConstraint(Sketcher.Constraint("DistanceY", -1, 1, 64, 2, Q("8.342121 mm")))
sketch1.addConstraint(Sketcher.Constraint("DistanceY", -1, 1, 65, 2, Q("10.815011 mm")))
sketch1.addConstraint(Sketcher.Constraint("DistanceX", -1, 1, 66, 2, Q("7.72438 mm")))
sketch1.addConstraint(Sketcher.Constraint("DistanceY", -1, 1, 67, 2, Q("10.461482 mm")))
sketch1.addConstraint(Sketcher.Constraint("DistanceX", -1, 1, 68, 2, Q("7.147319 mm")))
sketch1.addConstraint(Sketcher.Constraint("DistanceX", -1, 1, 70, 2, Q("4.372631 mm")))
sketch1.addConstraint(Sketcher.Constraint("DistanceY", -1, 1, 70, 2, Q("11.92351 mm")))
sketch1.addConstraint(Sketcher.Constraint("DistanceX", -1, 1, 72, 2, Q("1.912429 mm")))
sketch1.addConstraint(Sketcher.Constraint("DistanceX", -1, 1, 4, 3, Q("0.000298 mm")))
sketch1.addConstraint(Sketcher.Constraint("DistanceX", 31, 3, -1, 1, Q("0.000857 mm")))
sketch1.addConstraint(Sketcher.Constraint("DistanceY", 31, 3, -1, 1, Q("0.001566 mm")))
sketch1.addConstraint(Sketcher.Constraint("DistanceX", -1, 1, 43, 3, Q("0.000857 mm")))
sketch1.addConstraint(Sketcher.Constraint("DistanceY", 43, 3, -1, 1, Q("0.001566 mm")))
sketch1.addConstraint(Sketcher.Constraint("DistanceX", 70, 3, -1, 1, Q("0.000298 mm")))
sketch1.addConstraint(Sketcher.Constraint("DistanceX", 4, 2, -1, 1, Q("4.974694 mm")))
sketch1.addConstraint(Sketcher.Constraint("DistanceX", 10, 2, -1, 1, Q("9.988715 mm")))
sketch1.addConstraint(Sketcher.Constraint("DistanceX", 22, 2, -1, 1, Q("11.974442 mm")))
sketch1.addConstraint(Sketcher.Constraint("DistanceX", 31, 2, -1, 1, Q("5.832563 mm")))
sketch1.addConstraint(Sketcher.Constraint("DistanceX", -1, 1, 41, 2, Q("5.461512 mm")))
sketch1.addConstraint(Sketcher.Constraint("DistanceX", -1, 1, 49, 2, Q("10.892963 mm")))
sketch1.addConstraint(Sketcher.Constraint("DistanceY", 55, 2, -1, 1, Q("0.474052 mm")))
sketch1.addConstraint(Sketcher.Constraint("DistanceX", -1, 1, 58, 2, Q("12.410326 mm")))
sketch1.addConstraint(Sketcher.Constraint("DistanceX", -1, 1, 61, 2, Q("11.349715 mm")))

# Sketch on an angled plane
sketch2 = body.newObject("Sketcher::SketchObject", "Sketch001")
sketch2.Placement = App.Placement(Vector(0, 0, 0), App.Rotation(Vector(-0.342020119, 0, 0.93969263), Vector(0, 1.000000001, 0), Vector(-0.93969263, 0, -0.342020119), "ZXY"))
sketch2.addGeometry(Part.LineSegment(Vector(0, 0, 0), Vector(2.5, 0, 0)), False)
sketch2.addConstraint(Sketcher.Constraint("Horizontal", 0))
sketch2.addConstraint(Sketcher.Constraint("Coincident", 0, 1, -1, 1))
sketch2.addConstraint(Sketcher.Constraint("DistanceX", 0, 1, 0, 2, Q("0.1 in")))
doc.recompute()

additivepipe = body.newObject("PartDesign::AdditivePipe", "AdditivePipe")
additivepipe.Profile = sketch1
additivepipe.Spine = (sketch2, ["Edge1"])

doc.recompute()
